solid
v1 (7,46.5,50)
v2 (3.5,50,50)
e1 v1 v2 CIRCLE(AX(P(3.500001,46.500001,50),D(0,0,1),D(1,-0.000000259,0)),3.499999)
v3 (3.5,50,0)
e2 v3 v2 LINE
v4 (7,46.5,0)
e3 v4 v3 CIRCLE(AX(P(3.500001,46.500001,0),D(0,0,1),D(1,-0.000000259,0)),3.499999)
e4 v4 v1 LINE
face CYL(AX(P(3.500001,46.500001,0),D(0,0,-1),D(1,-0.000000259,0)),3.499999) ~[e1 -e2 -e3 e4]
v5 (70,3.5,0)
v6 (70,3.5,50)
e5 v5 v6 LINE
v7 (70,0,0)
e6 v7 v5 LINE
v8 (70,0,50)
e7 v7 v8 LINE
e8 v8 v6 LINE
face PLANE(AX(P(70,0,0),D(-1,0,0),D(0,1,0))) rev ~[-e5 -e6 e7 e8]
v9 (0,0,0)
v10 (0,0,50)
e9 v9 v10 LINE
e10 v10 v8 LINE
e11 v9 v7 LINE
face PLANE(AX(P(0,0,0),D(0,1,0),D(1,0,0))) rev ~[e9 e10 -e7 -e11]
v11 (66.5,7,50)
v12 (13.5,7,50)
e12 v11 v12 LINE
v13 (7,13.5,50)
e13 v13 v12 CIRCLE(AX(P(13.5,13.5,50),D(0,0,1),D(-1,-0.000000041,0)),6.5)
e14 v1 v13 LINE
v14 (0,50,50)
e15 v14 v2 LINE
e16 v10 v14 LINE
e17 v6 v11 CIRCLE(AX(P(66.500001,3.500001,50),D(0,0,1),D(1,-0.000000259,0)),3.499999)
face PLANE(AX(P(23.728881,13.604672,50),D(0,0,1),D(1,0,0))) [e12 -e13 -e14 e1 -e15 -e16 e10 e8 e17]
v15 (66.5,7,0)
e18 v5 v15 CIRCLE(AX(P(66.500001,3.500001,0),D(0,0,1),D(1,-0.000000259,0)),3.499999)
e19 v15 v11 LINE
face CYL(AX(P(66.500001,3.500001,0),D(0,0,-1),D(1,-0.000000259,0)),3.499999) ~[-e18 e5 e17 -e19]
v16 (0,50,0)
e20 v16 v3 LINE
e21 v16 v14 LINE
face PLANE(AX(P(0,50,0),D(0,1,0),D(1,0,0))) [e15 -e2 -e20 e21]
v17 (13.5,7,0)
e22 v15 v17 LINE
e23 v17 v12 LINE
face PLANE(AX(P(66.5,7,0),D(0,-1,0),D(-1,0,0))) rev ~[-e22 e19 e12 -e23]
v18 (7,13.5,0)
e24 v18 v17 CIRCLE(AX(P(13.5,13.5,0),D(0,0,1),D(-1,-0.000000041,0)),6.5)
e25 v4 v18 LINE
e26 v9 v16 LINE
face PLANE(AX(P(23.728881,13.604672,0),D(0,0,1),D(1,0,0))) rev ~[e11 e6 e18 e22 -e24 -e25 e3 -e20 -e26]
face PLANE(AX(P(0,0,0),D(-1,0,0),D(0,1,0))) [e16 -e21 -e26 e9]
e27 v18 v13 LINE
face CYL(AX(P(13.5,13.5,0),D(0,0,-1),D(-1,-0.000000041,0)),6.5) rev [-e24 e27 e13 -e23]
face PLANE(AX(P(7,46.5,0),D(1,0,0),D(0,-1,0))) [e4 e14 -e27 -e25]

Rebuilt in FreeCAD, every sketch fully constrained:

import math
import FreeCAD as App
import Part
import Sketcher

doc = App.newDocument("Part")
body = doc.addObject("PartDesign::Body", "Body")

# Sketch on XY plane
sketch1 = doc.addObject("Sketcher::SketchObject", "Sketch")
body.addObject(sketch1)
sketch1.AttachmentSupport = (doc.XY_Plane, [""])
sketch1.MapMode = "FlatFace"
sketch1.addGeometry([
    Part.LineSegment(App.Vector(0, 0, 0), App.Vector(70, 0, 0)),  # 0
    Part.LineSegment(App.Vector(70, 0, 0), App.Vector(70, 3.5, 0)),  # 1
    Part.ArcOfCircle(Part.Circle(App.Vector(66.5, 3.5, 0), App.Vector(0, 0, 1), 3.5), math.radians(0), math.radians(90)),  # 2
    Part.LineSegment(App.Vector(66.5, 7, 0), App.Vector(13.5, 7, 0)),  # 3
    Part.ArcOfCircle(Part.Circle(App.Vector(13.5, 13.5, 0), App.Vector(0, 0, 1), 6.5), math.radians(-180), math.radians(-90)),  # 4
    Part.LineSegment(App.Vector(7, 13.5, 0), App.Vector(7, 46.5, 0)),  # 5
    Part.ArcOfCircle(Part.Circle(App.Vector(3.5, 46.5, 0), App.Vector(0, 0, 1), 3.5), math.radians(0), math.radians(90)),  # 6
    Part.LineSegment(App.Vector(3.5, 50, 0), App.Vector(0, 50, 0)),  # 7
    Part.LineSegment(App.Vector(0, 50, 0), App.Vector(0, 0, 0)),  # 8
], False)
sketch1.addConstraint([
    Sketcher.Constraint("Coincident", 0, 2, 1, 1),
    Sketcher.Constraint("Tangent", 1, 2, 2, 1),
    Sketcher.Constraint("Tangent", 2, 2, 3, 1),
    Sketcher.Constraint("Tangent", 3, 2, 4, 2),
    Sketcher.Constraint("Tangent", 4, 1, 5, 1),
    Sketcher.Constraint("Tangent", 5, 2, 6, 1),
    Sketcher.Constraint("Tangent", 6, 2, 7, 1),
    Sketcher.Constraint("Coincident", 7, 2, 8, 1),
    Sketcher.Constraint("Coincident", 8, 2, 0, 1),
    Sketcher.Constraint("Horizontal", 0),
    Sketcher.Constraint("Vertical", 1),
    Sketcher.Constraint("Horizontal", 3),
    Sketcher.Constraint("Vertical", 5),
    Sketcher.Constraint("Horizontal", 7),
    Sketcher.Constraint("Vertical", 8),
    Sketcher.Constraint("Coincident", 8, 2, -1, 1),
    Sketcher.Constraint("Equal", 2, 6),
    Sketcher.Constraint("Equal", 7, 1),
    Sketcher.Constraint("Radius", 2, 3.499999),
    Sketcher.Constraint("Radius", 4, 6.5),
    Sketcher.Constraint("DistanceX", 0, 1, 0, 2, 70.0),
    Sketcher.Constraint("DistanceX", 3, 2, 3, 1, 53.0),
    Sketcher.Constraint("DistanceY", 5, 1, 5, 2, 33.0),
])
pad1 = doc.addObject("PartDesign::Pad", "Pad")
body.addObject(pad1)
pad1.Profile = sketch1
pad1.Length = 50

doc.recompute()
